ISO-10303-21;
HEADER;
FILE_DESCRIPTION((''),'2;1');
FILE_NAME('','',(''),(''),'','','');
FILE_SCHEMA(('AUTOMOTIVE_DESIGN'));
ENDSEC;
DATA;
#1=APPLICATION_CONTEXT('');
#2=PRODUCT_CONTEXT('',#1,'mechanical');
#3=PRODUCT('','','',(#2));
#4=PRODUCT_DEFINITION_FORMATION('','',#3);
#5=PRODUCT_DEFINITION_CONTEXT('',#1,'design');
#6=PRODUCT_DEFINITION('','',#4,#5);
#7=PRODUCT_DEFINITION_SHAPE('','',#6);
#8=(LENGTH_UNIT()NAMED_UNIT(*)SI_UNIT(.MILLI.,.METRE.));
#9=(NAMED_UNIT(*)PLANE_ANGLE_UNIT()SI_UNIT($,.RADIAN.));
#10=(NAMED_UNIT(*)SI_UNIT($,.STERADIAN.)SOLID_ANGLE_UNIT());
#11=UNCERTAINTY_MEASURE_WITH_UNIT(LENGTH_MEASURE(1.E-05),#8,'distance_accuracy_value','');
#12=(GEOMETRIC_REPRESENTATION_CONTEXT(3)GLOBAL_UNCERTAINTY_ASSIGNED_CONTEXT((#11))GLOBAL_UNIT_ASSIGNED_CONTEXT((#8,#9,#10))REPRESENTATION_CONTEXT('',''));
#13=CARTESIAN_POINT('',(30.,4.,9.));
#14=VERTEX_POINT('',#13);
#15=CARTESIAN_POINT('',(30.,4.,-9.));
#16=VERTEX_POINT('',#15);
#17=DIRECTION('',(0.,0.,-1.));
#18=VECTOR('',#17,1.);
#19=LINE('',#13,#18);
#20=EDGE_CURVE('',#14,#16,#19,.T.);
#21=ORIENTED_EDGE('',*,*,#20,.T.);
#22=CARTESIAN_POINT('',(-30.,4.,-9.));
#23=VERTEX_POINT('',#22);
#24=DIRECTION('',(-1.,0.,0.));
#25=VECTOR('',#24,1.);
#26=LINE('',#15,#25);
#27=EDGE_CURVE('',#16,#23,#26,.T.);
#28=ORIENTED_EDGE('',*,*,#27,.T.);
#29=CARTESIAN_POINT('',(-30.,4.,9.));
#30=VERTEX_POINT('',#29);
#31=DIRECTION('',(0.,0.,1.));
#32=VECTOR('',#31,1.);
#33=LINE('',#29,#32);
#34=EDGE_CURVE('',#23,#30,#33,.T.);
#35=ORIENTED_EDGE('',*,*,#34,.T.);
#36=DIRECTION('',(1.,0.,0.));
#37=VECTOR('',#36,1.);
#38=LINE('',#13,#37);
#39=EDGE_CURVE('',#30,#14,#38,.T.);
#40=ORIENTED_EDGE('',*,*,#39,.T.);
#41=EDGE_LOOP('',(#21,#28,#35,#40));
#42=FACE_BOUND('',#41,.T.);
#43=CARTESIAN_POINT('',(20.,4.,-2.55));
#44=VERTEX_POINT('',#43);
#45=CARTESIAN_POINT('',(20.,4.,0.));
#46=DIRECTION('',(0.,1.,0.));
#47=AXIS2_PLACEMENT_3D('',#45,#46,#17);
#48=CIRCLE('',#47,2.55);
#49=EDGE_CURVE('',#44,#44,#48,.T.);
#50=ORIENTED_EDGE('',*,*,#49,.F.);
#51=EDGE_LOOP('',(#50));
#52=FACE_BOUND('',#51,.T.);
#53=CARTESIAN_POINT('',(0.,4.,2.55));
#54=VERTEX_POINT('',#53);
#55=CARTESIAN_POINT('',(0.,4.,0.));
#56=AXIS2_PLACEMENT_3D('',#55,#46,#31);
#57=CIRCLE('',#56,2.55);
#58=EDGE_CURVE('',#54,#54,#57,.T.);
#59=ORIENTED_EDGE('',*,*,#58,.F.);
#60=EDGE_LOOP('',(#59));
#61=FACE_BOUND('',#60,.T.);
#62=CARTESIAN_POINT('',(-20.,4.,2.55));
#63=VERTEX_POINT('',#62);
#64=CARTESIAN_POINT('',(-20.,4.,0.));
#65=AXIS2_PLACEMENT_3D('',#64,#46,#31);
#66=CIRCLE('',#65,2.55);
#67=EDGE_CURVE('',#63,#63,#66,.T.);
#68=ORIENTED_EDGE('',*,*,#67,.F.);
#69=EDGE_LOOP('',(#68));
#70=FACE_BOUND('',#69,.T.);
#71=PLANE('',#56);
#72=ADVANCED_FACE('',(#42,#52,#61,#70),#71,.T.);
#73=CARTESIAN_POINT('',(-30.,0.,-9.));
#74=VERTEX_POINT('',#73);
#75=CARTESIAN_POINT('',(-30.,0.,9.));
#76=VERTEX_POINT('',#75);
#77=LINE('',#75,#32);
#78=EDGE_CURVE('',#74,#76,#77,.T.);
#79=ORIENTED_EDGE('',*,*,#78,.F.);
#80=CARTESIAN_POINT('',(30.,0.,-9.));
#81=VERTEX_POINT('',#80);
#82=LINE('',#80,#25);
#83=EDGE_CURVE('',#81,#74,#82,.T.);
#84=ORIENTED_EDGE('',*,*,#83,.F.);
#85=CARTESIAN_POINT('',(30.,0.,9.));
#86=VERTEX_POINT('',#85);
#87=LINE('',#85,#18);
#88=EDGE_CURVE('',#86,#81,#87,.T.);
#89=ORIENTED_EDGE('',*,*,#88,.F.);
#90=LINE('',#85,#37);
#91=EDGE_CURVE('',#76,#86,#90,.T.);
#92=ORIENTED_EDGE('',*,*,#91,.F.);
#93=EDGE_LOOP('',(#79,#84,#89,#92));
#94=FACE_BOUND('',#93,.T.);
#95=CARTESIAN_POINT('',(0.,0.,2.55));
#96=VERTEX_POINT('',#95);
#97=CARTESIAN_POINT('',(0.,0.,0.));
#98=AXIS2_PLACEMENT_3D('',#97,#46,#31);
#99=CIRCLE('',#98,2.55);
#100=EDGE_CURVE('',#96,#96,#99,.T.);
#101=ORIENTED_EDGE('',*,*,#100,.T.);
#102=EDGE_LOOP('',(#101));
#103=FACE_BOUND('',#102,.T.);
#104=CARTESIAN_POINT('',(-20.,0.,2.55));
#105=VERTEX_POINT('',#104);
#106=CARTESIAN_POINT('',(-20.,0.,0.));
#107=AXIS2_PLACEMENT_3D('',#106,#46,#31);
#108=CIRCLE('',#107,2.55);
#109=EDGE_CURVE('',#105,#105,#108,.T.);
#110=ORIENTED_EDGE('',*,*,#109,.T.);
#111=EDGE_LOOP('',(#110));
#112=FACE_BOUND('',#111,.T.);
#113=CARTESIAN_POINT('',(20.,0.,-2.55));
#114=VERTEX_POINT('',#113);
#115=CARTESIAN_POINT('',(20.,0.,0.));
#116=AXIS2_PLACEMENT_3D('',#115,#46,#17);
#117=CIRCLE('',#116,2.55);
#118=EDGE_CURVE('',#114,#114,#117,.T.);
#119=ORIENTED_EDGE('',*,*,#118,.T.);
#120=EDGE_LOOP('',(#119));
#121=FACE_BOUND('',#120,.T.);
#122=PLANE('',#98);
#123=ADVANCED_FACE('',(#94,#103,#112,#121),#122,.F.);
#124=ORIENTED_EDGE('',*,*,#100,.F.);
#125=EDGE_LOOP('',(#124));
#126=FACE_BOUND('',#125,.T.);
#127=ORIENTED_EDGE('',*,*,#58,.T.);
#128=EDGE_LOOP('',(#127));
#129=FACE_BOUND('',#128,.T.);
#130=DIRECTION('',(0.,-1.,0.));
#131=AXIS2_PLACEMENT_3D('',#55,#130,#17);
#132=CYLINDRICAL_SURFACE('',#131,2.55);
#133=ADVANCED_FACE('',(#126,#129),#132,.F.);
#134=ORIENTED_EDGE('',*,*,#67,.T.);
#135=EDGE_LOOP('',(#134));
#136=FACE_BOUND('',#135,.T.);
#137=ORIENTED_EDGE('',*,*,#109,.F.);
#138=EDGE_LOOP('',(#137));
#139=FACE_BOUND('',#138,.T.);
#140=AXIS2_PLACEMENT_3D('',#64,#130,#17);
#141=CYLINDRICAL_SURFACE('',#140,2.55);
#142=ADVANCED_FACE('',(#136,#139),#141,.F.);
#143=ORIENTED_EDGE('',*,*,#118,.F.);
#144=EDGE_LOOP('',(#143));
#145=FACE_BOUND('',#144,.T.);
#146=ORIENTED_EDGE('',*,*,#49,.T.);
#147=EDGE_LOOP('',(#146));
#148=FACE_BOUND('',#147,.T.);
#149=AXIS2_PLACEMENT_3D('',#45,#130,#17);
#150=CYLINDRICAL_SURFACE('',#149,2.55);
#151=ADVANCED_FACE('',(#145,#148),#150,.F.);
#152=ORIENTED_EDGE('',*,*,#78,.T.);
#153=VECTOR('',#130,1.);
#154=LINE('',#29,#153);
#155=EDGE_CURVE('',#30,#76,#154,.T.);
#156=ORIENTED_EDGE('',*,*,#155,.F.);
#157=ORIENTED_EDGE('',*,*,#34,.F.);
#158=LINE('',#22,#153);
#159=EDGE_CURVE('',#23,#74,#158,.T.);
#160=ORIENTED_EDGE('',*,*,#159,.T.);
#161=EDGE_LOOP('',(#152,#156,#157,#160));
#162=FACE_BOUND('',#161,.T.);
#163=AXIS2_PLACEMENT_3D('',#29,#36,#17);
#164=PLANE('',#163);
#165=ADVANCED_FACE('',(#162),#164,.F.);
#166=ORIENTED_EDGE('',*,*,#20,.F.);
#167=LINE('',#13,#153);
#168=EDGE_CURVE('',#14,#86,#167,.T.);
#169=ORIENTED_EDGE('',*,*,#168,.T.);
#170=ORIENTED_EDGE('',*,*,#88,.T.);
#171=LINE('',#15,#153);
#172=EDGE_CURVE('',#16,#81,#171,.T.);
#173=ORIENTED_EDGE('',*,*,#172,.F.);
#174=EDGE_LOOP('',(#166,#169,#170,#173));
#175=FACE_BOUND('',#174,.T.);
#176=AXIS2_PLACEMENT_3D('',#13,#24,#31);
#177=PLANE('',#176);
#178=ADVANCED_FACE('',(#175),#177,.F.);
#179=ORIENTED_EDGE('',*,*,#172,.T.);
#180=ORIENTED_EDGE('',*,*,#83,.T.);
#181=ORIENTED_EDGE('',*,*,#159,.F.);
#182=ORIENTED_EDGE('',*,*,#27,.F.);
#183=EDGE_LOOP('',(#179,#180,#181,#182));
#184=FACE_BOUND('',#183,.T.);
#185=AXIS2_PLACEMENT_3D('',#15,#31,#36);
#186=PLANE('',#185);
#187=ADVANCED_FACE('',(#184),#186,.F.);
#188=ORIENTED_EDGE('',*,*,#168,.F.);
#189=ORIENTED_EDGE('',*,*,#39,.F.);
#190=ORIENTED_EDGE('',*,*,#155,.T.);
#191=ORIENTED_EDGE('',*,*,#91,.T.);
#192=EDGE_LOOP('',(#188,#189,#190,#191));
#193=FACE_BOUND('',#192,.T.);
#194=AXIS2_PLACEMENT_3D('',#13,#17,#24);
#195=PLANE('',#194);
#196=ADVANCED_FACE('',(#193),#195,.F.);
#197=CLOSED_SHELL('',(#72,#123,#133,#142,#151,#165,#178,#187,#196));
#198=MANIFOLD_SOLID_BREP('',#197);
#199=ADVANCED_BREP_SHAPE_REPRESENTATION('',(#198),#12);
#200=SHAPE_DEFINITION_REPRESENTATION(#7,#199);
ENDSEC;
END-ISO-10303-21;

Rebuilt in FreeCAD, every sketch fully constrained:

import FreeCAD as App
import Part
import Sketcher

V = App.Vector
Q = App.Units.Quantity

doc = App.newDocument("Part")
body = doc.addObject("PartDesign::Body", "Body")

# Sketch on XZ plane
sketch1 = body.newObject("Sketcher::SketchObject", "Sketch")
sketch1.AttachmentSupport = (doc.getObject("XZ_Plane"), [""])
sketch1.MapMode = "FlatFace"
sketch1.addGeometry(Part.LineSegment(V(-30, -9, 0), V(-30, 9, 0)), False)
sketch1.addGeometry(Part.LineSegment(V(-30, 9, 0), V(30, 9, 0)), False)
sketch1.addGeometry(Part.LineSegment(V(30, 9, 0), V(30, -9, 0)), False)
sketch1.addGeometry(Part.LineSegment(V(30, -9, 0), V(-30, -9, 0)), False)
sketch1.addGeometry(Part.Circle(V(-20, 0, 0), V(0, 0, 1), 2.55), False)
sketch1.addGeometry(Part.Circle(V(0, 0, 0), V(0, 0, 1), 2.55), False)
sketch1.addGeometry(Part.Circle(V(20, 0, 0), V(0, 0, 1), 2.55), False)
sketch1.addConstraint(Sketcher.Constraint("Coincident", 0, 2, 1, 1))
sketch1.addConstraint(Sketcher.Constraint("Coincident", 1, 2, 2, 1))
sketch1.addConstraint(Sketcher.Constraint("Coincident", 2, 2, 3, 1))
sketch1.addConstraint(Sketcher.Constraint("Coincident", 3, 2, 0, 1))
sketch1.addConstraint(Sketcher.Constraint("Vertical", 0))
sketch1.addConstraint(Sketcher.Constraint("Horizontal", 1))
sketch1.addConstraint(Sketcher.Constraint("Vertical", 2))
sketch1.addConstraint(Sketcher.Constraint("Horizontal", 3))
sketch1.addConstraint(Sketcher.Constraint("Coincident", 5, 3, -1, 1))
sketch1.addConstraint(Sketcher.Constraint("Equal", 4, 5))
sketch1.addConstraint(Sketcher.Constraint("Equal", 5, 6))
sketch1.addConstraint(Sketcher.Constraint("Symmetric", 4, 3, 6, 3, -1, 1))
sketch1.addConstraint(Sketcher.Constraint("Symmetric", 0, 2, 2, 2, -1, 1))
sketch1.addConstraint(Sketcher.Constraint("PointOnObject", 4, 3, -1))
sketch1.addConstraint(Sketcher.Constraint("Diameter", 4, Q("5.1 mm")))
sketch1.addConstraint(Sketcher.Constraint("DistanceX", 1, 1, 1, 2, Q("60 mm")))
sketch1.addConstraint(Sketcher.Constraint("DistanceY", 0, 1, 0, 2, Q("18 mm")))
sketch1.addConstraint(Sketcher.Constraint("DistanceX", 4, 3, -1, 1, Q("20 mm")))
pad1 = body.newObject("PartDesign::Pad", "Pad")
pad1.Profile = sketch1
pad1.Length = 4
pad1.Reversed = True

doc.recompute()
